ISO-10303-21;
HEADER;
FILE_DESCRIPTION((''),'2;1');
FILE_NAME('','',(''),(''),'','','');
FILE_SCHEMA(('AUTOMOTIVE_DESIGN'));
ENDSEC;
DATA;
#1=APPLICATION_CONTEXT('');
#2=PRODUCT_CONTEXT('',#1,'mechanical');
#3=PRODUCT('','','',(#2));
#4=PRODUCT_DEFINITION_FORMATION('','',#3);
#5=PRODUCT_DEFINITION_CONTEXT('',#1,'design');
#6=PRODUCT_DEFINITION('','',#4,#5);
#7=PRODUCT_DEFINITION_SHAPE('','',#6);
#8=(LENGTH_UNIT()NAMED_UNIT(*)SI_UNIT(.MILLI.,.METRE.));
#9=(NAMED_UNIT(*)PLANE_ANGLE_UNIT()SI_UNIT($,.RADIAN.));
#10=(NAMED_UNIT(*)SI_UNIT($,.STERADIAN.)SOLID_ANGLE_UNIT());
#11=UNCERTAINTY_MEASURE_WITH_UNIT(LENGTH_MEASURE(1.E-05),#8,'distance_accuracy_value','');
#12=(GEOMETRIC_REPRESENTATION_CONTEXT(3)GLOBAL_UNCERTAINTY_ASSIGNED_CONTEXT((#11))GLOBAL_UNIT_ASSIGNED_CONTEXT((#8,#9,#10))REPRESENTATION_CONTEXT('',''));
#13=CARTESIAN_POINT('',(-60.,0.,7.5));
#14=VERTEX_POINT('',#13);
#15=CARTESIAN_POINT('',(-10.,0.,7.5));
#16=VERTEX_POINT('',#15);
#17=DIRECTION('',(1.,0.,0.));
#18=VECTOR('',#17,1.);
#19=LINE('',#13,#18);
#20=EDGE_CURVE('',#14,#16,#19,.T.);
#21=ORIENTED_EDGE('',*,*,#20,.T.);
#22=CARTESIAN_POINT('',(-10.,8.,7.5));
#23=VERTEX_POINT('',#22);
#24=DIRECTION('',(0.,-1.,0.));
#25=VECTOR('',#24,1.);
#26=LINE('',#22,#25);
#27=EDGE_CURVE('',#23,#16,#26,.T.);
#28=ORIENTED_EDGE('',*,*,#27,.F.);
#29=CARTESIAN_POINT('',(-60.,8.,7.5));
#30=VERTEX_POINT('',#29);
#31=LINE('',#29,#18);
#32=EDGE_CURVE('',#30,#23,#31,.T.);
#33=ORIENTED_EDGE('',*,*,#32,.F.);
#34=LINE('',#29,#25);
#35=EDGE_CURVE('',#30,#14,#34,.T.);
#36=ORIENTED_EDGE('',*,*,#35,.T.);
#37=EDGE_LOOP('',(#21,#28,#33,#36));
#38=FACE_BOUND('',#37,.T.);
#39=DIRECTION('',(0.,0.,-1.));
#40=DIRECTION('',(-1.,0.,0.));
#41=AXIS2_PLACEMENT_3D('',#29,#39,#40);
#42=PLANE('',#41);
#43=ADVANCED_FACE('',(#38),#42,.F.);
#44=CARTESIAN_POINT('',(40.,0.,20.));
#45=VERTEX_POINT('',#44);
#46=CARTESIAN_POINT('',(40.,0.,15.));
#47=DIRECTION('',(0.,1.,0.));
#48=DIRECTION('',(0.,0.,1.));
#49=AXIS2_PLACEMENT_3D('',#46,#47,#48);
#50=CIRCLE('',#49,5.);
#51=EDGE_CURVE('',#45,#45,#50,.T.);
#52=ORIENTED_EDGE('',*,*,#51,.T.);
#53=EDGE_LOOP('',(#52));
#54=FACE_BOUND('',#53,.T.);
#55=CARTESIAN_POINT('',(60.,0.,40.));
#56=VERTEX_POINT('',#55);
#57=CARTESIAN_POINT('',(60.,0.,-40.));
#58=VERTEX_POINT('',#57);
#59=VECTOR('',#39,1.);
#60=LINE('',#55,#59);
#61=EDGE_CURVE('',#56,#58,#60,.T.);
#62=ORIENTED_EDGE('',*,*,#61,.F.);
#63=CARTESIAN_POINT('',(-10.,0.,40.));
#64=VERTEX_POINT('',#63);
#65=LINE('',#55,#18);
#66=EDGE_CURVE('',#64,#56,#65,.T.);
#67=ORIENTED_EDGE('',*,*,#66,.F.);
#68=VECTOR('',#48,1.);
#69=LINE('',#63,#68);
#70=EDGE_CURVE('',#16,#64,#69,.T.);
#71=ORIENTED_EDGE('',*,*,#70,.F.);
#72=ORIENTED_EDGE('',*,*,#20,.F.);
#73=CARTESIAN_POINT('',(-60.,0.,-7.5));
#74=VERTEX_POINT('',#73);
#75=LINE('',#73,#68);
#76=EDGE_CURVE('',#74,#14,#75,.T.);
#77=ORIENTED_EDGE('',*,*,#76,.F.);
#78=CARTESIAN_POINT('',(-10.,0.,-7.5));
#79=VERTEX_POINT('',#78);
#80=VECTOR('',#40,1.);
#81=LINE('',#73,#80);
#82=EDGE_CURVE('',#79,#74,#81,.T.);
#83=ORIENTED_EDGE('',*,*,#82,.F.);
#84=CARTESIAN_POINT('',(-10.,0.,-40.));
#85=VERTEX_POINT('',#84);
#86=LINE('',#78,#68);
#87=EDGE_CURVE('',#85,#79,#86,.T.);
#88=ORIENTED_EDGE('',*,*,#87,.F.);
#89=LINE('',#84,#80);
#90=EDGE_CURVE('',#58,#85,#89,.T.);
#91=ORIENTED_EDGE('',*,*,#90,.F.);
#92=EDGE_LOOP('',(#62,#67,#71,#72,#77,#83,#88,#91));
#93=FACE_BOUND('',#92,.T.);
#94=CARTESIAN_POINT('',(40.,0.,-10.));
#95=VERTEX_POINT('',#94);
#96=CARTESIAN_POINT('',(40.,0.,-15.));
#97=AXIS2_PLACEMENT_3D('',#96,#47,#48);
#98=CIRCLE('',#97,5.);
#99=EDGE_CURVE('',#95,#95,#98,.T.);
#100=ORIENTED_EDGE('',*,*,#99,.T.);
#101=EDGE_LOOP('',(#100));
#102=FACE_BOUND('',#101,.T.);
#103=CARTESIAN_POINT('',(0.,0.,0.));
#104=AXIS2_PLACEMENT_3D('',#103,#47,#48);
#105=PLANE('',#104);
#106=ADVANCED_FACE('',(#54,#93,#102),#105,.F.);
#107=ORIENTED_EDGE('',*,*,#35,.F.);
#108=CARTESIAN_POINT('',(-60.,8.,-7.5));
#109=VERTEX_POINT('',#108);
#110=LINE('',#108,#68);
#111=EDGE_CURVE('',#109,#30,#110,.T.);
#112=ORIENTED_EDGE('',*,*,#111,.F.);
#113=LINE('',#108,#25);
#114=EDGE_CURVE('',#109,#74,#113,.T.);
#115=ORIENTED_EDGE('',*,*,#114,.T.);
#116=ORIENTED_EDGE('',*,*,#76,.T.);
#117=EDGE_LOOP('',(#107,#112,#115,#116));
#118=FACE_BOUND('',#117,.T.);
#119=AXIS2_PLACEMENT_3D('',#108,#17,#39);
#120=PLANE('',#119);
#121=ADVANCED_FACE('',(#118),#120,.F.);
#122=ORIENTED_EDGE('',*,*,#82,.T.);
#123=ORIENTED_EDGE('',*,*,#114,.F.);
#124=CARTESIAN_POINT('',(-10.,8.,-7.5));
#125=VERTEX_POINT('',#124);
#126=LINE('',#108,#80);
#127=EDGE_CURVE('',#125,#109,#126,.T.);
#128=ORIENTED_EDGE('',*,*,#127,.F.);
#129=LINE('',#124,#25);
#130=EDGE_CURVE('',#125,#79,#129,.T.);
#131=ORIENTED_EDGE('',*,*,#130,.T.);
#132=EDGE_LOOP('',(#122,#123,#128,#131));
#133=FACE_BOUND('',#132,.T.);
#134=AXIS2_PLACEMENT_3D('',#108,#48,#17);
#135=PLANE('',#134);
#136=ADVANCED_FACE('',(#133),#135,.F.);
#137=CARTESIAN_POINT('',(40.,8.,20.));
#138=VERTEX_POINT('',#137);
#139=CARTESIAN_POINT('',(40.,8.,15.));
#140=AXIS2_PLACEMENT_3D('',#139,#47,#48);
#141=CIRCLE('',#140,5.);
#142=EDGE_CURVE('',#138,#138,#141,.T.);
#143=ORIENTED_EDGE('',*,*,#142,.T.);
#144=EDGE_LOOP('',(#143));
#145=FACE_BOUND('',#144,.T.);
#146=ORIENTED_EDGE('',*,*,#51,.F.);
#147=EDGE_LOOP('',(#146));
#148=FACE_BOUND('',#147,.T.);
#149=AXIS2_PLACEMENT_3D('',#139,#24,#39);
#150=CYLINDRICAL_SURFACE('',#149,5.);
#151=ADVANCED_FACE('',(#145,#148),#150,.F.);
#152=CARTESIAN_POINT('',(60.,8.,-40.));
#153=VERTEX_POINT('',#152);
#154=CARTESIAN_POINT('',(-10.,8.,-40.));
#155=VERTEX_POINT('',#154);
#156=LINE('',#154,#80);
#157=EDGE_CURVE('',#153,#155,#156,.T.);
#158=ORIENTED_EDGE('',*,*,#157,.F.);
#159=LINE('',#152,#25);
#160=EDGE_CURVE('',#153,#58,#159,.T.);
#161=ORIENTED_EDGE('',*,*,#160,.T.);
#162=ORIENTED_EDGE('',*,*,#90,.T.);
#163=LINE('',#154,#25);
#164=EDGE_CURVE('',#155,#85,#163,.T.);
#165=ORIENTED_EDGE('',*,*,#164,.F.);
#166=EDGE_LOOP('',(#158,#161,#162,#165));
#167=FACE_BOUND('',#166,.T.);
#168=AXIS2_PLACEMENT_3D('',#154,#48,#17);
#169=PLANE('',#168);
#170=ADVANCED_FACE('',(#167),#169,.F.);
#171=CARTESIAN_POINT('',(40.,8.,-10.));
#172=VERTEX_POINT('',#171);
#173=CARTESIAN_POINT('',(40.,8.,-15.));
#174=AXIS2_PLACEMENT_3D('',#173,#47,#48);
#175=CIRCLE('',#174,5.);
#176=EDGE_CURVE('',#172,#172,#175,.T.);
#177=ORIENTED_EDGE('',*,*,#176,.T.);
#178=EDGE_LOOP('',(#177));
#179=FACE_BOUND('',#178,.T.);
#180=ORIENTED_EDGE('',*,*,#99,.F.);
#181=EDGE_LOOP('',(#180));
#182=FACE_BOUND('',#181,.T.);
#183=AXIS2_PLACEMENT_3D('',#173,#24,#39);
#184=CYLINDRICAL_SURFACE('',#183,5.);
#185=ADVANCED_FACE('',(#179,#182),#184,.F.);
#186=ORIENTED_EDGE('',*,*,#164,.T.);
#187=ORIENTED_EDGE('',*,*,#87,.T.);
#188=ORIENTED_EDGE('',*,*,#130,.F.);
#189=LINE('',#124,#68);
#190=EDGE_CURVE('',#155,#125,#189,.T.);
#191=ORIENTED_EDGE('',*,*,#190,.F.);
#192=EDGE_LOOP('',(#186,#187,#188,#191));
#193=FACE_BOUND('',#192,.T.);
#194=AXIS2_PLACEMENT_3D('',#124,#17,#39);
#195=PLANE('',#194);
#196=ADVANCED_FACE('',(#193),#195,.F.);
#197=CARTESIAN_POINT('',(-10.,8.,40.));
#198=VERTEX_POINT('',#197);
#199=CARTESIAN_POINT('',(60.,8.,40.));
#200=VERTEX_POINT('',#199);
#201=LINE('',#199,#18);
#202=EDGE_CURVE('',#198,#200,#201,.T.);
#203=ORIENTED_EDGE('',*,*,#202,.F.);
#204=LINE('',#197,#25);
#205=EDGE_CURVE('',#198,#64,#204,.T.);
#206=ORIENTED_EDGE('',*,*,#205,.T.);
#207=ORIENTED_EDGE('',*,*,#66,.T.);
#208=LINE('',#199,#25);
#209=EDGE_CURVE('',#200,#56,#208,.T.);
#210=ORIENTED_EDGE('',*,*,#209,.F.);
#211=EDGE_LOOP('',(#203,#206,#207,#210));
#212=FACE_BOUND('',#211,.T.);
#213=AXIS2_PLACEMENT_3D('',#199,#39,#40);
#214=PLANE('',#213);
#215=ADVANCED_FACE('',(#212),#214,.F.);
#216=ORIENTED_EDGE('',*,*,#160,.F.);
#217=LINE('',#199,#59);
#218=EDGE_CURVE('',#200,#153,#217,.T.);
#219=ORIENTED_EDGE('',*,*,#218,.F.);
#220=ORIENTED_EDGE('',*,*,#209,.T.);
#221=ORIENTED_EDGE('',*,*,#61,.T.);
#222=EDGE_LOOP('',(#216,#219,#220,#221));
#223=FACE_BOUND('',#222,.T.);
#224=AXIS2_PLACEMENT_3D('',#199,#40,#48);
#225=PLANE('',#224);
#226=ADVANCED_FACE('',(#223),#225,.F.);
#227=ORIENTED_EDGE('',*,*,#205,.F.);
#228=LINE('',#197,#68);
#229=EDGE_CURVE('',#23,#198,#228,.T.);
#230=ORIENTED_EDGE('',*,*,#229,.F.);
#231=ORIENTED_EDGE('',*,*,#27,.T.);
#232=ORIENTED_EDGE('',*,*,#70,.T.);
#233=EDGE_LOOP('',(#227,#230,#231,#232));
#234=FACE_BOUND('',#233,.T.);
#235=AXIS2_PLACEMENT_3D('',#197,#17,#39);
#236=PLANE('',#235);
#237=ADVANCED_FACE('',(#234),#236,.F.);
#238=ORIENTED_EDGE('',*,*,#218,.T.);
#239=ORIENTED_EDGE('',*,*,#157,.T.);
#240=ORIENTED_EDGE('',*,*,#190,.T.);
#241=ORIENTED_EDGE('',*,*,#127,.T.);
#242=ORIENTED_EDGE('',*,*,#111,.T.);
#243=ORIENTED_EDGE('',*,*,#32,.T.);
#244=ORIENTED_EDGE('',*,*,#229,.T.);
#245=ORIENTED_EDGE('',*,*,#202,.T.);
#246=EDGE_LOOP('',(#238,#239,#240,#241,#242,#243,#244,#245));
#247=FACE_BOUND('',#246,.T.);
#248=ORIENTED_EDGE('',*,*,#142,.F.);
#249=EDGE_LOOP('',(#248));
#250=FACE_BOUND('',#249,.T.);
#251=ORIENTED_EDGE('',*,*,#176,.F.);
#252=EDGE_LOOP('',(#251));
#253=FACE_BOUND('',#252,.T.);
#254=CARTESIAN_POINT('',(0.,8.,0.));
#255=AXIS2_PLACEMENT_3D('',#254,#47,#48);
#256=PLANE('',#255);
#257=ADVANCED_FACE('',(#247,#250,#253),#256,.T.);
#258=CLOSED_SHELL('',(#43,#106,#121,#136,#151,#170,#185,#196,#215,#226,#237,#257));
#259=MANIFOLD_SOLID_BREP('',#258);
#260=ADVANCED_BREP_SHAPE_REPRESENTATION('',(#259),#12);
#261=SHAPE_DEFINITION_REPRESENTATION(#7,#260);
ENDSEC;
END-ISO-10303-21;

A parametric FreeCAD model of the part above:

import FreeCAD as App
import Part
import Sketcher

V = App.Vector
Q = App.Units.Quantity


def add_polygon(sketch, points):
    """Adds a closed chain of lines whose ends are joined by coincident constraints."""
    first, n = sketch.GeometryCount, len(points)
    for a, b in zip(points, points[1:] + points[:1]):
        sketch.addGeometry(Part.LineSegment(App.Vector(*a, 0), App.Vector(*b, 0)), False)
    for i in range(n):
        sketch.addConstraint(Sketcher.Constraint("Coincident", first + i, 2, first + (i + 1) % n, 1))

doc = App.newDocument("Part")
params = doc.addObject("Spreadsheet::Sheet", "Params")
for row, (alias, value) in enumerate([
    ("sketch1_diameter", "10 mm"),
    ("sketch1_width", "70 mm"),
    ("sketch1_width2", "50 mm"),
    ("sketch1_height", "80 mm"),
    ("sketch1_height2", "15 mm"),
    ("pad1_length", "8 mm"),
], start=1):
    params.set(f"A{row}", alias)
    params.set(f"B{row}", "=" + value)
    params.setAlias(f"B{row}", alias)

body = doc.addObject("PartDesign::Body", "Body")

sketch1 = body.newObject("Sketcher::SketchObject", "Sketch")
sketch1.AttachmentSupport = (doc.getObject("XZ_Plane"), [""])
sketch1.MapMode = "FlatFace"
add_polygon(sketch1, [(60, 40), (60, -40), (-10, -40), (-10, -7.5), (-60, -7.5), (-60, 7.5), (-10, 7.5), (-10, 40)])
sketch1.addGeometry(Part.Circle(V(40, 15, 0), V(0, 0, 1), 5), False)
sketch1.addGeometry(Part.Circle(V(40, -15, 0), V(0, 0, 1), 5), False)
sketch1.addConstraint([
    Sketcher.Constraint("Vertical", 0),
    Sketcher.Constraint("Horizontal", 1),
    Sketcher.Constraint("Vertical", 2),
    Sketcher.Constraint("Horizontal", 3),
    Sketcher.Constraint("Vertical", 4),
    Sketcher.Constraint("Horizontal", 5),
    Sketcher.Constraint("Vertical", 6),
    Sketcher.Constraint("Horizontal", 7),
    Sketcher.Constraint("Equal", 8, 9),
    Sketcher.Constraint("Symmetric", 8, 3, 9, 3, -1),
    Sketcher.Constraint("Symmetric", 2, 2, 5, 2, -1),
    Sketcher.Constraint("Equal", 2, 6),
    Sketcher.Constraint("Diameter", 8, Q("10 mm")),
    Sketcher.Constraint("DistanceX", 1, 2, 1, 1, Q("70 mm")),
    Sketcher.Constraint("DistanceX", 3, 2, 3, 1, Q("50 mm")),
    Sketcher.Constraint("DistanceY", 0, 2, 0, 1, Q("80 mm")),
    Sketcher.Constraint("DistanceY", 4, 1, 4, 2, Q("15 mm")),
    Sketcher.Constraint("DistanceX", -1, 1, 8, 3, Q("40 mm")),
    Sketcher.Constraint("DistanceY", -1, 1, 8, 3, Q("15 mm")),
    Sketcher.Constraint("DistanceX", -1, 1, 0, 2, Q("60 mm")),
])
sketch1.setExpression("Constraints[20]", "Params.sketch1_diameter")
sketch1.setExpression("Constraints[21]", "Params.sketch1_width")
sketch1.setExpression("Constraints[22]", "Params.sketch1_width2")
sketch1.setExpression("Constraints[23]", "Params.sketch1_height")
sketch1.setExpression("Constraints[24]", "Params.sketch1_height2")
pad1 = body.newObject("PartDesign::Pad", "Pad")
pad1.Profile = sketch1
pad1.setExpression("Length", "Params.pad1_length")
pad1.Reversed = True

doc.recompute()
